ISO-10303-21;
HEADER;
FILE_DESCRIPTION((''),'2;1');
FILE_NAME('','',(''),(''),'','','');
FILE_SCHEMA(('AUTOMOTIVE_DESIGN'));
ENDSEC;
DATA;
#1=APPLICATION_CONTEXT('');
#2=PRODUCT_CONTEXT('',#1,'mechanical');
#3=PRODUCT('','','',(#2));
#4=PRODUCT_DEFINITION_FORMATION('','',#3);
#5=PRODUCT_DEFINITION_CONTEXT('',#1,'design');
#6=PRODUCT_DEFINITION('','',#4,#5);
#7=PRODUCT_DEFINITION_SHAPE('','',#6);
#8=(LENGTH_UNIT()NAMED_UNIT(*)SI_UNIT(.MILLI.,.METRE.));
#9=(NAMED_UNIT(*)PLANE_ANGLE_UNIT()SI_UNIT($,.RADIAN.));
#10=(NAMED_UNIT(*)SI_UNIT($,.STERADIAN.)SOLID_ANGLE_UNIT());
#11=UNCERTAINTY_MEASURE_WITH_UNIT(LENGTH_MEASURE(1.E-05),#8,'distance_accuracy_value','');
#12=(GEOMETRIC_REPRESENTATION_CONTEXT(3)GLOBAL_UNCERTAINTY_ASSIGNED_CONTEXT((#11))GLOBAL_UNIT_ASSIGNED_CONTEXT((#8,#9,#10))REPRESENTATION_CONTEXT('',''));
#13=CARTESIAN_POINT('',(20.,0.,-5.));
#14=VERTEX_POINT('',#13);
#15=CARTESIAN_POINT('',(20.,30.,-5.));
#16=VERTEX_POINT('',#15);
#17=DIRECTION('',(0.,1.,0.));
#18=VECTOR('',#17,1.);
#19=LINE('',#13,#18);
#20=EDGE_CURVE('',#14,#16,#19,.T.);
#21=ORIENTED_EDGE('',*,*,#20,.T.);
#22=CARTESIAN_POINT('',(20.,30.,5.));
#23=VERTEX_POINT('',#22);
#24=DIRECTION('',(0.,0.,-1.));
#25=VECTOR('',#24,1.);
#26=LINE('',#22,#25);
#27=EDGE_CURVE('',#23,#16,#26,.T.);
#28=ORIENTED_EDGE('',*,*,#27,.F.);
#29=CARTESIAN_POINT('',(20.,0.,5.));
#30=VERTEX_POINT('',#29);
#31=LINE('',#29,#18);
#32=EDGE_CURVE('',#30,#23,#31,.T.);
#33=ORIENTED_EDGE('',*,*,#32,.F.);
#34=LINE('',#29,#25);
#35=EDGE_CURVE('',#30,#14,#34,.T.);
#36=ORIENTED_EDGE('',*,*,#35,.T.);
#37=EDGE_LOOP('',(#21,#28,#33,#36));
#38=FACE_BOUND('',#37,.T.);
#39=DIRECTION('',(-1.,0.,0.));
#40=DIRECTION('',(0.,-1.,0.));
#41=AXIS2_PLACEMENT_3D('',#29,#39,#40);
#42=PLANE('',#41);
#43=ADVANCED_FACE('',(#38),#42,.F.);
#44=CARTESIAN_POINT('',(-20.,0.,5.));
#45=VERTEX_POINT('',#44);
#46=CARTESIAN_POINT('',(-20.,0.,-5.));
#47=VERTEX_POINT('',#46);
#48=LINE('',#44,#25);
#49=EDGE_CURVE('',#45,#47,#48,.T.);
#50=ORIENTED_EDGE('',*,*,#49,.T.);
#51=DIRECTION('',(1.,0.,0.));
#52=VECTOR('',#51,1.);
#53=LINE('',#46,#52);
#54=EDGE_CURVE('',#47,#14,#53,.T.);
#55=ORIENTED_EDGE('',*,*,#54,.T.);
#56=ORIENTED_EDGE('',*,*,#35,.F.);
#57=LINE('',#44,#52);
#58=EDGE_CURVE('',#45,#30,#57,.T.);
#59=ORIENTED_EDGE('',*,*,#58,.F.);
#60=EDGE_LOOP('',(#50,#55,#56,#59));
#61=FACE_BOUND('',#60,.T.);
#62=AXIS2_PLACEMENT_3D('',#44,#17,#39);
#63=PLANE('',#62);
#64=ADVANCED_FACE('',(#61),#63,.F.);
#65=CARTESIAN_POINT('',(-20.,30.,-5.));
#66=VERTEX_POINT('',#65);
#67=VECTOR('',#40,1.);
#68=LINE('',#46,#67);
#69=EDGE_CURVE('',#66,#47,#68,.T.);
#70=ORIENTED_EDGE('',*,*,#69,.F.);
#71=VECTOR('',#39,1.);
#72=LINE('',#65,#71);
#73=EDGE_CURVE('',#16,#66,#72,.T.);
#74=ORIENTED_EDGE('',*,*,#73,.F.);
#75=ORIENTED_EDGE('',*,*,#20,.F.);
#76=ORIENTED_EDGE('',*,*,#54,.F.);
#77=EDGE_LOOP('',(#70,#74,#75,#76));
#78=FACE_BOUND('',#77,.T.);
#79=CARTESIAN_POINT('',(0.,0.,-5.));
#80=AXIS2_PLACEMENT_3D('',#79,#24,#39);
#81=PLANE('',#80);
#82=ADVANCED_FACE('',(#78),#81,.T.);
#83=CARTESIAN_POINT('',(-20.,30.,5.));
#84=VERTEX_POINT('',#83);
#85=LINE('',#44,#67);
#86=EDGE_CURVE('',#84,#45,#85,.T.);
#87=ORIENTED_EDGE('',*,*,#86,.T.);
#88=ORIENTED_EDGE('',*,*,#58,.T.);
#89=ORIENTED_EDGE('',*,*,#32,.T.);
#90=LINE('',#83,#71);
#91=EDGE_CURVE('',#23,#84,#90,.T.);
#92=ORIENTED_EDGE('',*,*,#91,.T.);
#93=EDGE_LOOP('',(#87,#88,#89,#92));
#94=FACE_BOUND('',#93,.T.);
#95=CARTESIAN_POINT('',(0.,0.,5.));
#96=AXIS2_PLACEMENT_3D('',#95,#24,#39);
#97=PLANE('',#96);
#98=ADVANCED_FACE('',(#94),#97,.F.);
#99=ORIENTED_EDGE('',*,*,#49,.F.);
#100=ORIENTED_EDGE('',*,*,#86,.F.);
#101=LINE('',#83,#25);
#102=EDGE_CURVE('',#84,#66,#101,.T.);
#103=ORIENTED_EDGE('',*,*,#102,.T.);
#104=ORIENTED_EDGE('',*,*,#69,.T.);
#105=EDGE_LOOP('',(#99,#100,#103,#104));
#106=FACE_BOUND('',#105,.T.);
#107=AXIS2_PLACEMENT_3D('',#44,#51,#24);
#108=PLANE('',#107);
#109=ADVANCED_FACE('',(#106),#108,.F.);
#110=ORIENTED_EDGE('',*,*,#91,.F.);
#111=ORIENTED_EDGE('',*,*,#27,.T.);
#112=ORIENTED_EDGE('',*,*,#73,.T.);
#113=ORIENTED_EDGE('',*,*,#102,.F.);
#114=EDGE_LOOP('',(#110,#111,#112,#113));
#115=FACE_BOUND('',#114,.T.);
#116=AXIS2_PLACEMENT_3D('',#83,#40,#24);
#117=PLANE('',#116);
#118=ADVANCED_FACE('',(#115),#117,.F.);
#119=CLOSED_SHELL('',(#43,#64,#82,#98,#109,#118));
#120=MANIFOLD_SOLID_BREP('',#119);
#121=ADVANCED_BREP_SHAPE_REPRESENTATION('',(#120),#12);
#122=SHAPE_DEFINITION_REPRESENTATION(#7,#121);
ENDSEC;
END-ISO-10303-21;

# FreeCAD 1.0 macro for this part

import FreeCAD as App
import Part
import Sketcher

V = App.Vector
Q = App.Units.Quantity


def add_polygon(sketch, points):
    """Adds a closed chain of lines whose ends are joined by coincident constraints."""
    first, n = sketch.GeometryCount, len(points)
    for a, b in zip(points, points[1:] + points[:1]):
        sketch.addGeometry(Part.LineSegment(App.Vector(*a, 0), App.Vector(*b, 0)), False)
    for i in range(n):
        sketch.addConstraint(Sketcher.Constraint("Coincident", first + i, 2, first + (i + 1) % n, 1))

doc = App.newDocument("Part")
params = doc.addObject("Spreadsheet::Sheet", "Params")
for row, (alias, value) in enumerate([
    ("sketch1_width", "40 mm"),
    ("sketch1_height", "30 mm"),
    ("pad1_length", "10 mm"),
], start=1):
    params.set(f"A{row}", alias)
    params.set(f"B{row}", "=" + value)
    params.setAlias(f"B{row}", alias)

body = doc.addObject("PartDesign::Body", "Body")

sketch1 = body.newObject("Sketcher::SketchObject", "Sketch")
sketch1.AttachmentSupport = (doc.getObject("XY_Plane"), [""])
sketch1.MapMode = "FlatFace"
add_polygon(sketch1, [(-20, 30), (-20, 0), (20, 0), (20, 30)])
sketch1.addConstraint([
    Sketcher.Constraint("Vertical", 0),
    Sketcher.Constraint("Horizontal", 1),
    Sketcher.Constraint("Vertical", 2),
    Sketcher.Constraint("Horizontal", 3),
    Sketcher.Constraint("Symmetric", 0, 2, 1, 2, -1, 1),
    Sketcher.Constraint("DistanceX", 1, 1, 1, 2, Q("40 mm")),
    Sketcher.Constraint("DistanceY", 0, 2, 0, 1, Q("30 mm")),
])
sketch1.setExpression("Constraints[9]", "Params.sketch1_width")
sketch1.setExpression("Constraints[10]", "Params.sketch1_height")
pad1 = body.newObject("PartDesign::Pad", "Pad")
pad1.Profile = sketch1
pad1.setExpression("Length", "Params.pad1_length")
pad1.Midplane = True

doc.recompute()
